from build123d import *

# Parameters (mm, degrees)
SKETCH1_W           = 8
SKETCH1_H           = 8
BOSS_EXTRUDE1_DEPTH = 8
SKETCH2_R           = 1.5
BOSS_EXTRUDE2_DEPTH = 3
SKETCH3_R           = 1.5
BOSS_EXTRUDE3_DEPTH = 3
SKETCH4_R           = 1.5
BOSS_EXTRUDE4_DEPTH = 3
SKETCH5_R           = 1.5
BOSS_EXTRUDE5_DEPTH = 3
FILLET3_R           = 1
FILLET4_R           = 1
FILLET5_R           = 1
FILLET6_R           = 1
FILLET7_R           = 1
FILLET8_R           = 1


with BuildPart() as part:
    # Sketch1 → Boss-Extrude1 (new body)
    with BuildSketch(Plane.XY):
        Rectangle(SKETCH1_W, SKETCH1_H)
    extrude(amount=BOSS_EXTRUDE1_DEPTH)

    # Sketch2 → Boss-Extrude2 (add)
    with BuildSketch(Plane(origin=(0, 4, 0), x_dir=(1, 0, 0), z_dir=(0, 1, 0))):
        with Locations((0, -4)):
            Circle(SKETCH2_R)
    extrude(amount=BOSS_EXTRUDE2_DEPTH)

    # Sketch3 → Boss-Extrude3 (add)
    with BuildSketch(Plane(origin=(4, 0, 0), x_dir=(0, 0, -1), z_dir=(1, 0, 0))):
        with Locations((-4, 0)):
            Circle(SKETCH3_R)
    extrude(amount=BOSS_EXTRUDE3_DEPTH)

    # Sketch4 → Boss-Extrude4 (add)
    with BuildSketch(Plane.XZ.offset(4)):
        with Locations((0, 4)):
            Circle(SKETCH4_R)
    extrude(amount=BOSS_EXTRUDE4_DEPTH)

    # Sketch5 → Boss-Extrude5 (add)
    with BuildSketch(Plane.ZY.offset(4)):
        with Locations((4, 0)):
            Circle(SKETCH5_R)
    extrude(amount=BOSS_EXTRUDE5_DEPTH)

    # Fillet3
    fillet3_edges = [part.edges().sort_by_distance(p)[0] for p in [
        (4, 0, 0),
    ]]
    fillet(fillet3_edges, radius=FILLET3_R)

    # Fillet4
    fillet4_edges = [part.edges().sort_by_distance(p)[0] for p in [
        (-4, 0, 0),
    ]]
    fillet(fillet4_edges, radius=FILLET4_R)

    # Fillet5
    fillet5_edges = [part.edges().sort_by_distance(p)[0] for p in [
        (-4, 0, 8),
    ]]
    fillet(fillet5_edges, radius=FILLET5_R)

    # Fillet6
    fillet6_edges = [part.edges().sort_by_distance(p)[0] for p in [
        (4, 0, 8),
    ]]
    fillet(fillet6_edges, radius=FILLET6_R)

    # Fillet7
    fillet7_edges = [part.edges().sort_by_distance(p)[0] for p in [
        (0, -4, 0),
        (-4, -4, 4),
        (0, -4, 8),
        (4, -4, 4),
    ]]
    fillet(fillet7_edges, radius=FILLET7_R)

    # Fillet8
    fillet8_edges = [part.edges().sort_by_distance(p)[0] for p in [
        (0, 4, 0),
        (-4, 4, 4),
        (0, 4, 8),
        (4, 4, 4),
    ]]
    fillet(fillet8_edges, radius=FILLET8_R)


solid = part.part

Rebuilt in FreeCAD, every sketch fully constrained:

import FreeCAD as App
import Part
import Sketcher
from FreeCAD import Vector


def edges_at(feature, points):
    """Names of the edges that pass closest to the given points."""
    edges = feature.Shape.Edges
    near = lambda p: min(range(len(edges)), key=lambda i: edges[i].distToShape(Part.Vertex(*p))[0])
    return sorted({f"Edge{near(p) + 1}" for p in points})


def add_polygon(sketch, points):
    """Adds a closed chain of lines whose ends are joined by coincident constraints."""
    first, n = sketch.GeometryCount, len(points)
    for a, b in zip(points, points[1:] + points[:1]):
        sketch.addGeometry(Part.LineSegment(App.Vector(*a, 0), App.Vector(*b, 0)), False)
    for i in range(n):
        sketch.addConstraint(Sketcher.Constraint("Coincident", first + i, 2, first + (i + 1) % n, 1))

doc = App.newDocument("Part")
params = doc.addObject("Spreadsheet::Sheet", "Params")
for row, (alias, value) in enumerate([
    ("sketch1_width", "8 mm"),
    ("pad1_length", "8 mm"),
    ("sketch2_diameter", "3 mm"),
    ("pad2_length", "3 mm"),
    ("sketch3_diameter", "3 mm"),
    ("pad3_length", "3 mm"),
    ("sketch4_diameter", "3 mm"),
    ("pad4_length", "3 mm"),
    ("sketch5_diameter", "3 mm"),
    ("pad5_length", "3 mm"),
    ("fillet_radius", "1 mm"),
    ("fillet2_radius", "1 mm"),
    ("fillet3_radius", "1 mm"),
    ("fillet4_radius", "1 mm"),
    ("fillet5_radius", "1 mm"),
    ("fillet6_radius", "1 mm"),
], start=1):
    params.set(f"A{row}", alias)
    params.set(f"B{row}", "=" + value)
    params.setAlias(f"B{row}", alias)

body = doc.addObject("PartDesign::Body", "Body")

# Sketch on XY plane
sketch1 = body.newObject("Sketcher::SketchObject", "Sketch")
sketch1.AttachmentSupport = (doc.getObject("XY_Plane"), [""])
sketch1.MapMode = "FlatFace"
add_polygon(sketch1, [(-4, 4), (-4, -4), (4, -4), (4, 4)])  # lines 0-3
sketch1.addConstraint(Sketcher.Constraint("Vertical", 0))
sketch1.addConstraint(Sketcher.Constraint("Horizontal", 1))
sketch1.addConstraint(Sketcher.Constraint("Vertical", 2))
sketch1.addConstraint(Sketcher.Constraint("Horizontal", 3))
sketch1.addConstraint(Sketcher.Constraint("Symmetric", 0, 2, 2, 2, -1, 1))
sketch1.addConstraint(Sketcher.Constraint("Equal", 3, 0))
sketch1.addConstraint(Sketcher.Constraint("DistanceX", 1, 1, 1, 2, 8.0))
sketch1.setExpression("Constraints[10]", "Params.sketch1_width")
pad1 = body.newObject("PartDesign::Pad", "Pad")
pad1.Profile = sketch1
pad1.setExpression("Length", "Params.pad1_length")

# Sketch on XZ plane
sketch2 = body.newObject("Sketcher::SketchObject", "Sketch001")
sketch2.AttachmentSupport = (doc.getObject("XZ_Plane"), [""])
sketch2.MapMode = "FlatFace"
sketch2.AttachmentOffset = App.Placement(Vector(0, 0, -4), App.Rotation())
sketch2.addGeometry(Part.Circle(Vector(0, 4, 0), Vector(0, 0, 1), 1.5), False)
sketch2.addConstraint(Sketcher.Constraint("PointOnObject", 0, 3, -2))
sketch2.addConstraint(Sketcher.Constraint("Diameter", 0, 3.0))
sketch2.addConstraint(Sketcher.Constraint("DistanceY", -1, 1, 0, 3, 4.0))
sketch2.setExpression("Constraints[1]", "Params.sketch2_diameter")
pad2 = body.newObject("PartDesign::Pad", "Pad001")
pad2.Profile = sketch2
pad2.setExpression("Length", "Params.pad2_length")
pad2.Reversed = True

# Sketch on YZ plane
sketch3 = body.newObject("Sketcher::SketchObject", "Sketch002")
sketch3.AttachmentSupport = (doc.getObject("YZ_Plane"), [""])
sketch3.MapMode = "FlatFace"
sketch3.AttachmentOffset = App.Placement(Vector(0, 0, 4), App.Rotation())
sketch3.addGeometry(Part.Circle(Vector(0, 4, 0), Vector(0, 0, 1), 1.5), False)
sketch3.addConstraint(Sketcher.Constraint("PointOnObject", 0, 3, -2))
sketch3.addConstraint(Sketcher.Constraint("Diameter", 0, 3.0))
sketch3.addConstraint(Sketcher.Constraint("DistanceY", -1, 1, 0, 3, 4.0))
sketch3.setExpression("Constraints[1]", "Params.sketch3_diameter")
pad3 = body.newObject("PartDesign::Pad", "Pad002")
pad3.Profile = sketch3
pad3.setExpression("Length", "Params.pad3_length")

# Sketch on XZ plane
sketch4 = body.newObject("Sketcher::SketchObject", "Sketch003")
sketch4.AttachmentSupport = (doc.getObject("XZ_Plane"), [""])
sketch4.MapMode = "FlatFace"
sketch4.AttachmentOffset = App.Placement(Vector(0, 0, 4), App.Rotation())
sketch4.addGeometry(Part.Circle(Vector(0, 4, 0), Vector(0, 0, 1), 1.5), False)
sketch4.addConstraint(Sketcher.Constraint("PointOnObject", 0, 3, -2))
sketch4.addConstraint(Sketcher.Constraint("Diameter", 0, 3.0))
sketch4.addConstraint(Sketcher.Constraint("DistanceY", -1, 1, 0, 3, 4.0))
sketch4.setExpression("Constraints[1]", "Params.sketch4_diameter")
pad4 = body.newObject("PartDesign::Pad", "Pad003")
pad4.Profile = sketch4
pad4.setExpression("Length", "Params.pad4_length")

# Sketch on YZ plane
sketch5 = body.newObject("Sketcher::SketchObject", "Sketch004")
sketch5.AttachmentSupport = (doc.getObject("YZ_Plane"), [""])
sketch5.MapMode = "FlatFace"
sketch5.AttachmentOffset = App.Placement(Vector(0, 0, -4), App.Rotation())
sketch5.addGeometry(Part.Circle(Vector(0, 4, 0), Vector(0, 0, 1), 1.5), False)
sketch5.addConstraint(Sketcher.Constraint("PointOnObject", 0, 3, -2))
sketch5.addConstraint(Sketcher.Constraint("Diameter", 0, 3.0))
sketch5.addConstraint(Sketcher.Constraint("DistanceY", -1, 1, 0, 3, 4.0))
sketch5.setExpression("Constraints[1]", "Params.sketch5_diameter")
pad5 = body.newObject("PartDesign::Pad", "Pad004")
pad5.Profile = sketch5
pad5.setExpression("Length", "Params.pad5_length")
pad5.Reversed = True
doc.recompute()

fillet = body.newObject("PartDesign::Fillet", "Fillet")
fillet.Base = (pad5, edges_at(pad5, [(4, 0, 0)]))
fillet.setExpression("Radius", "Params.fillet_radius")
doc.recompute()

fillet2 = body.newObject("PartDesign::Fillet", "Fillet001")
fillet2.Base = (fillet, edges_at(fillet, [(-4, 0, 0)]))
fillet2.setExpression("Radius", "Params.fillet2_radius")
doc.recompute()

fillet3 = body.newObject("PartDesign::Fillet", "Fillet002")
fillet3.Base = (fillet2, edges_at(fillet2, [(-4, 0, 8)]))
fillet3.setExpression("Radius", "Params.fillet3_radius")
doc.recompute()

fillet4 = body.newObject("PartDesign::Fillet", "Fillet003")
fillet4.Base = (fillet3, edges_at(fillet3, [(4, 0, 8)]))
fillet4.setExpression("Radius", "Params.fillet4_radius")
doc.recompute()

fillet5 = body.newObject("PartDesign::Fillet", "Fillet004")
fillet5.Base = (fillet4, edges_at(fillet4, [
    (0, -4, 0),
    (-4, -4, 4),
    (0, -4, 8),
    (4, -4, 4),
]))
fillet5.setExpression("Radius", "Params.fillet5_radius")
doc.recompute()

fillet6 = body.newObject("PartDesign::Fillet", "Fillet005")
fillet6.Base = (fillet5, edges_at(fillet5, [
    (0, 4, 0),
    (-4, 4, 4),
    (0, 4, 8),
    (4, 4, 4),
]))
fillet6.setExpression("Radius", "Params.fillet6_radius")

doc.recompute()
